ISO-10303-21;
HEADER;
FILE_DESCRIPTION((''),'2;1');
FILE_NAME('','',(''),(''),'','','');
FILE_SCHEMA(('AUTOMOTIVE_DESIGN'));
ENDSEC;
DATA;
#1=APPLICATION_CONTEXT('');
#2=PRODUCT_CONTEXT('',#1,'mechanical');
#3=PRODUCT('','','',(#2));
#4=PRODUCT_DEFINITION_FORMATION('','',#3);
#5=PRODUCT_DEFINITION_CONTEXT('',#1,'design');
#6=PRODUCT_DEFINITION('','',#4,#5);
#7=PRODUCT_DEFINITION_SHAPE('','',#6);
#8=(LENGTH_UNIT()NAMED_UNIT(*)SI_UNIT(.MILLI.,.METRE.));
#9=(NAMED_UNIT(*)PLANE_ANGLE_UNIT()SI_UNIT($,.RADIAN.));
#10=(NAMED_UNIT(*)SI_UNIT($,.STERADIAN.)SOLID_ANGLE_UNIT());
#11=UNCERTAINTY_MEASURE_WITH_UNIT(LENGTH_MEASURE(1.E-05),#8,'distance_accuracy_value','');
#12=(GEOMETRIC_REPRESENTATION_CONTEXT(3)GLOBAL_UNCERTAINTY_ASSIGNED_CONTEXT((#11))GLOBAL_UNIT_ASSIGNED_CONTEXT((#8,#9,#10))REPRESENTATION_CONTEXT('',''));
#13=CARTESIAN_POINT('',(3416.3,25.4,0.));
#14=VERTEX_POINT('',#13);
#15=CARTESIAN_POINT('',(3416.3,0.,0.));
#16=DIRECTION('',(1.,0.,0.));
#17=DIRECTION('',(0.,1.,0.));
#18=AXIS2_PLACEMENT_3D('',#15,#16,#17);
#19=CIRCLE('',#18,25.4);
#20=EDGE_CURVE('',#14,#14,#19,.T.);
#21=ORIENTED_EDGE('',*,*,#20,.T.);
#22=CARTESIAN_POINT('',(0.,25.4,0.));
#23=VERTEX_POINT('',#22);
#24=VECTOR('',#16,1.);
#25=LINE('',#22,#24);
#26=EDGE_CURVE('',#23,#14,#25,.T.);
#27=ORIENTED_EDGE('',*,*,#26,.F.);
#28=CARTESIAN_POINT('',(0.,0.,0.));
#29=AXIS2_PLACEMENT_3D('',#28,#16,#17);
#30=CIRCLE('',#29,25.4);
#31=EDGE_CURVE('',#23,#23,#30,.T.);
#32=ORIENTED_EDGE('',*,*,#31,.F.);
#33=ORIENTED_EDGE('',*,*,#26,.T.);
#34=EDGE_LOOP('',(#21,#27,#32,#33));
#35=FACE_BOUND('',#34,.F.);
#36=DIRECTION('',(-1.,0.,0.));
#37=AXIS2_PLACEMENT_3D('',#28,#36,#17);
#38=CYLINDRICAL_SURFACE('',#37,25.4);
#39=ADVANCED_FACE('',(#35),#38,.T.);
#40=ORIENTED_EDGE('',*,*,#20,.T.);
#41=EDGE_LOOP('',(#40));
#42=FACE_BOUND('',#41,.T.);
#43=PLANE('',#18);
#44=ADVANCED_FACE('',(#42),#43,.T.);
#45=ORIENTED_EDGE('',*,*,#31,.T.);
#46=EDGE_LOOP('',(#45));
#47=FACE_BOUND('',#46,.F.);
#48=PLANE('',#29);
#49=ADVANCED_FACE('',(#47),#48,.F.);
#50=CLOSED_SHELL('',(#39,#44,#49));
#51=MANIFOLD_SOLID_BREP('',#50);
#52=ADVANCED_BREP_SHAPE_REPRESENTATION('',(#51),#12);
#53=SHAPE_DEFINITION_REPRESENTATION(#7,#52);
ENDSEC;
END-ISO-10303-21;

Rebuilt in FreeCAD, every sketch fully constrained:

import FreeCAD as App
import Part
import Sketcher
from FreeCAD import Vector
Q = App.Units.Quantity

doc = App.newDocument("Part")
params = doc.addObject("Spreadsheet::Sheet", "Params")
for row, (alias, value) in enumerate([
    ("sketch1_diameter", "2 in"),
    ("pad1_length", "134.5 in"),
], start=1):
    params.set(f"A{row}", alias)
    params.set(f"B{row}", "=" + value)
    params.setAlias(f"B{row}", alias)

body = doc.addObject("PartDesign::Body", "Body")

sketch1 = body.newObject("Sketcher::SketchObject", "Sketch")
sketch1.AttachmentSupport = (doc.getObject("YZ_Plane"), [""])
sketch1.MapMode = "FlatFace"
sketch1.addGeometry(Part.Circle(Vector(0, 0, 0), Vector(0, 0, 1), 25), False)
sketch1.addConstraint([
    Sketcher.Constraint("Coincident", 0, 3, -1, 1),
    Sketcher.Constraint("Diameter", 0, Q("2 in")),
])
sketch1.setExpression("Constraints[1]", "Params.sketch1_diameter")
pad1 = body.newObject("PartDesign::Pad", "Pad")
pad1.Profile = sketch1
pad1.setExpression("Length", "Params.pad1_length")

doc.recompute()
